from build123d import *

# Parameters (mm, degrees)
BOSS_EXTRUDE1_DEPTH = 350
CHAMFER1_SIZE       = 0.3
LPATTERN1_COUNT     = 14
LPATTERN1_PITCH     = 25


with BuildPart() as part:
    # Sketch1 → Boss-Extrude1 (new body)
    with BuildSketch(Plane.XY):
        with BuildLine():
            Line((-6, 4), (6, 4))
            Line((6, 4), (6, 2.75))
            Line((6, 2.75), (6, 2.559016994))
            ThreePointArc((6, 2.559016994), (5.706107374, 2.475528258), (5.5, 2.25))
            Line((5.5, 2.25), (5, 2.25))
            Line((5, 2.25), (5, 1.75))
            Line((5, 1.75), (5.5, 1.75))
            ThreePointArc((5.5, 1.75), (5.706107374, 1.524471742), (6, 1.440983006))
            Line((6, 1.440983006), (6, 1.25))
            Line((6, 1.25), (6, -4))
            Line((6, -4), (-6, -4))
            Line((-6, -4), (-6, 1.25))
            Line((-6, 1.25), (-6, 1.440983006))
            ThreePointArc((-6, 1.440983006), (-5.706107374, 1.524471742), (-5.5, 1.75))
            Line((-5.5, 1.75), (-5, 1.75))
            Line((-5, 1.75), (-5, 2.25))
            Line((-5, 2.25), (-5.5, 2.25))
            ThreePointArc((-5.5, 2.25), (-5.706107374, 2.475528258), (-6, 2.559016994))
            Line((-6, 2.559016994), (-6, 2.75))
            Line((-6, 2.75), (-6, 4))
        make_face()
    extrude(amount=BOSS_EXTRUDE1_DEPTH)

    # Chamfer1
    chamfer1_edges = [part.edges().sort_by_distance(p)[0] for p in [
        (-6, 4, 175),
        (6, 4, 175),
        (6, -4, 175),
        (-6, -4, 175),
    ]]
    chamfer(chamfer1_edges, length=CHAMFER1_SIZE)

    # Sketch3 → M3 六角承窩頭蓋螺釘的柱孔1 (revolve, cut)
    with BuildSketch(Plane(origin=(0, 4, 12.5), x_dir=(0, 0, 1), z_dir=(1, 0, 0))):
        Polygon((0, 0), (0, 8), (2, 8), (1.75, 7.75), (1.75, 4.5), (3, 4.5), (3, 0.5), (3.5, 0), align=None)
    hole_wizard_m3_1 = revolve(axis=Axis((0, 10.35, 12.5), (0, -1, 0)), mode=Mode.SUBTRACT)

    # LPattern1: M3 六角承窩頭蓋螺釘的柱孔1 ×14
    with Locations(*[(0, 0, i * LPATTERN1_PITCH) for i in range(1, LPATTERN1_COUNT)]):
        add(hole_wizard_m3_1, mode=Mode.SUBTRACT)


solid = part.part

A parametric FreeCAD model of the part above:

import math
import FreeCAD as App
import Part
import Sketcher
from FreeCAD import Vector
Q = App.Units.Quantity


def edges_at(feature, points):
    """Names of the edges that pass closest to the given points."""
    edges = feature.Shape.Edges
    near = lambda p: min(range(len(edges)), key=lambda i: edges[i].distToShape(Part.Vertex(*p))[0])
    return sorted({f"Edge{near(p) + 1}" for p in points})

doc = App.newDocument("Part")
params = doc.addObject("Spreadsheet::Sheet", "Params")
for row, (alias, value) in enumerate([
    ("sketch1_width", "12 mm"),
    ("sketch1_width2", "0.5 mm"),
    ("pad1_length", "350 mm"),
    ("chamfer_size", "0.3 mm"),
    ("sketch2_width", "8 mm"),
    ("sketch2_width2", "4 mm"),
    ("sketch2_height", "2 mm"),
    ("sketch2_height2", "3.5 mm"),
    ("sketch2_width3", "3.25 mm"),
    ("groove_angle", "360 deg"),
    ("linearpattern_pitch", "25 mm"),
], start=1):
    params.set(f"A{row}", alias)
    params.set(f"B{row}", "=" + value)
    params.setAlias(f"B{row}", alias)

body = doc.addObject("PartDesign::Body", "Body")

# Sketch on XY plane
sketch1 = body.newObject("Sketcher::SketchObject", "Sketch")
sketch1.AttachmentSupport = (doc.getObject("XY_Plane"), [""])
sketch1.MapMode = "FlatFace"
sketch1.addGeometry([
    Part.LineSegment(Vector(6, 4, 0), Vector(-6, 4, 0)),  # 0
    Part.LineSegment(Vector(-6, 4, 0), Vector(-6, 2.559017, 0)),  # 1
    Part.ArcOfCircle(Part.Circle(Vector(-6, 2, 0), Vector(0, 0, 1), 0.559017), math.radians(26.565051), math.radians(90)),  # 2
    Part.LineSegment(Vector(-5.5, 2.25, 0), Vector(-5, 2.25, 0)),  # 3
    Part.LineSegment(Vector(-5, 2.25, 0), Vector(-5, 1.75, 0)),  # 4
    Part.LineSegment(Vector(-5, 1.75, 0), Vector(-5.5, 1.75, 0)),  # 5
    Part.ArcOfCircle(Part.Circle(Vector(-6, 2, 0), Vector(0, 0, 1), 0.559017), math.radians(-90), math.radians(-26.565051)),  # 6
    Part.LineSegment(Vector(-6, 1.440983, 0), Vector(-6, -4, 0)),  # 7
    Part.LineSegment(Vector(-6, -4, 0), Vector(6, -4, 0)),  # 8
    Part.LineSegment(Vector(6, -4, 0), Vector(6, 1.440983, 0)),  # 9
    Part.ArcOfCircle(Part.Circle(Vector(6, 2, 0), Vector(0, 0, 1), 0.559017), math.radians(-153.434949), math.radians(-90)),  # 10
    Part.LineSegment(Vector(5.5, 1.75, 0), Vector(5, 1.75, 0)),  # 11
    Part.LineSegment(Vector(5, 1.75, 0), Vector(5, 2.25, 0)),  # 12
    Part.LineSegment(Vector(5, 2.25, 0), Vector(5.5, 2.25, 0)),  # 13
    Part.ArcOfCircle(Part.Circle(Vector(6, 2, 0), Vector(0, 0, 1), 0.559017), math.radians(90), math.radians(153.434949)),  # 14
    Part.LineSegment(Vector(6, 2.559017, 0), Vector(6, 4, 0)),  # 15
], False)
sketch1.addConstraint([
    Sketcher.Constraint("Coincident", 0, 2, 1, 1),
    Sketcher.Constraint("Coincident", 1, 2, 2, 2),
    Sketcher.Constraint("Coincident", 2, 1, 3, 1),
    Sketcher.Constraint("Coincident", 3, 2, 4, 1),
    Sketcher.Constraint("Coincident", 4, 2, 5, 1),
    Sketcher.Constraint("Coincident", 5, 2, 6, 2),
    Sketcher.Constraint("Coincident", 6, 1, 7, 1),
    Sketcher.Constraint("Coincident", 7, 2, 8, 1),
    Sketcher.Constraint("Coincident", 8, 2, 9, 1),
    Sketcher.Constraint("Coincident", 9, 2, 10, 2),
    Sketcher.Constraint("Coincident", 10, 1, 11, 1),
    Sketcher.Constraint("Coincident", 11, 2, 12, 1),
    Sketcher.Constraint("Coincident", 12, 2, 13, 1),
    Sketcher.Constraint("Coincident", 13, 2, 14, 2),
    Sketcher.Constraint("Coincident", 14, 1, 15, 1),
    Sketcher.Constraint("Coincident", 15, 2, 0, 1),
    Sketcher.Constraint("Horizontal", 0),
    Sketcher.Constraint("Vertical", 1),
    Sketcher.Constraint("Horizontal", 3),
    Sketcher.Constraint("Vertical", 4),
    Sketcher.Constraint("Horizontal", 5),
    Sketcher.Constraint("Vertical", 7),
    Sketcher.Constraint("Horizontal", 8),
    Sketcher.Constraint("Vertical", 9),
    Sketcher.Constraint("Horizontal", 11),
    Sketcher.Constraint("Vertical", 12),
    Sketcher.Constraint("Horizontal", 13),
    Sketcher.Constraint("Vertical", 15),
    Sketcher.Constraint("Coincident", 6, 3, 2, 3),
    Sketcher.Constraint("Coincident", 14, 3, 10, 3),
    Sketcher.Constraint("Equal", 2, 6),
    Sketcher.Constraint("Equal", 6, 10),
    Sketcher.Constraint("Equal", 10, 14),
    Sketcher.Constraint("Symmetric", 0, 2, 8, 2, -1, 1),
    Sketcher.Constraint("Symmetric", 2, 3, 10, 3, -2),
    Sketcher.Constraint("Symmetric", 4, 2, 11, 2, -2),
    Sketcher.Constraint("Horizontal", 3, 2, 12, 2),
    Sketcher.Constraint("Vertical", 6, 3, 0, 2),
    Sketcher.Constraint("Vertical", 2, 1, 5, 2),
    Sketcher.Constraint("Vertical", 1, 2, 6, 1),
    Sketcher.Constraint("Vertical", 9, 2, 14, 1),
    Sketcher.Constraint("Equal", 13, 4),
    Sketcher.Constraint("DistanceX", 0, 2, 0, 1, 12.0),
    Sketcher.Constraint("DistanceX", 3, 1, 3, 2, 0.5),
    Sketcher.Constraint("DistanceY", -1, 1, 2, 3, 2.0),
    Sketcher.Constraint("DistanceY", -1, 1, 0, 2, 4.0),
    Sketcher.Constraint("DistanceX", 3, 2, -1, 1, 5.0),
])
sketch1.setExpression("Constraints[42]", "Params.sketch1_width")
sketch1.setExpression("Constraints[43]", "Params.sketch1_width2")
pad1 = body.newObject("PartDesign::Pad", "Pad")
pad1.Profile = sketch1
pad1.setExpression("Length", "Params.pad1_length")
doc.recompute()

chamfer = body.newObject("PartDesign::Chamfer", "Chamfer")
chamfer.Base = (pad1, edges_at(pad1, [
    (-6, 4, 175),
    (6, 4, 175),
    (6, -4, 175),
    (-6, -4, 175),
]))
chamfer.setExpression("Size", "Params.chamfer_size")

# Sketch on YZ plane
sketch2 = body.newObject("Sketcher::SketchObject", "Sketch001")
sketch2.AttachmentSupport = (doc.getObject("YZ_Plane"), [""])
sketch2.MapMode = "FlatFace"
sketch2.addGeometry([
    Part.LineSegment(Vector(-4, 12.5, 0), Vector(4, 12.5, 0)),  # 0
    Part.LineSegment(Vector(4, 12.5, 0), Vector(4, 16, 0)),  # 1
    Part.LineSegment(Vector(4, 16, 0), Vector(3.5, 15.5, 0)),  # 2
    Part.LineSegment(Vector(3.5, 15.5, 0), Vector(-0.5, 15.5, 0)),  # 3
    Part.LineSegment(Vector(-0.5, 15.5, 0), Vector(-0.5, 14.25, 0)),  # 4
    Part.LineSegment(Vector(-0.5, 14.25, 0), Vector(-3.75, 14.25, 0)),  # 5
    Part.LineSegment(Vector(-3.75, 14.25, 0), Vector(-4, 14.5, 0)),  # 6
    Part.LineSegment(Vector(-4, 14.5, 0), Vector(-4, 12.5, 0)),  # 7
], False)
sketch2.addGeometry(Part.LineSegment(Vector(4, 12.5, 0), Vector(-4, 12.5, 0)), True)  # axis
sketch2.addConstraint([
    Sketcher.Constraint("Coincident", 0, 2, 1, 1),
    Sketcher.Constraint("Coincident", 1, 2, 2, 1),
    Sketcher.Constraint("Coincident", 2, 2, 3, 1),
    Sketcher.Constraint("Coincident", 3, 2, 4, 1),
    Sketcher.Constraint("Coincident", 4, 2, 5, 1),
    Sketcher.Constraint("Coincident", 5, 2, 6, 1),
    Sketcher.Constraint("Coincident", 6, 2, 7, 1),
    Sketcher.Constraint("Coincident", 7, 2, 0, 1),
    Sketcher.Constraint("Horizontal", 0),
    Sketcher.Constraint("Vertical", 1),
    Sketcher.Constraint("Horizontal", 3),
    Sketcher.Constraint("Vertical", 4),
    Sketcher.Constraint("Horizontal", 5),
    Sketcher.Constraint("Vertical", 7),
    Sketcher.Constraint("Horizontal", 8),
    Sketcher.Constraint("Coincident", 8, 1, 0, 2),
    Sketcher.Constraint("Perpendicular", 2, 6),
    Sketcher.Constraint("Vertical", 6, 2, 8, 2),
    Sketcher.Constraint("DistanceX", 0, 1, 0, 2, 8.0),
    Sketcher.Constraint("DistanceX", 3, 2, 3, 1, 4.0),
    Sketcher.Constraint("DistanceY", 7, 2, 7, 1, 2.0),
    Sketcher.Constraint("Angle", 2, Q("-135 deg")),
    Sketcher.Constraint("DistanceY", 1, 1, 1, 2, 3.5),
    Sketcher.Constraint("DistanceX", -1, 1, 0, 2, 4.0),
    Sketcher.Constraint("DistanceY", -1, 1, 1, 2, 16.0),
    Sketcher.Constraint("DistanceY", 0, 2, 2, 2, 3.0),
    Sketcher.Constraint("DistanceX", 5, 2, 5, 1, 3.25),
])
sketch2.setExpression("Constraints[18]", "Params.sketch2_width")
sketch2.setExpression("Constraints[19]", "Params.sketch2_width2")
sketch2.setExpression("Constraints[20]", "Params.sketch2_height")
sketch2.setExpression("Constraints[22]", "Params.sketch2_height2")
sketch2.setExpression("Constraints[26]", "Params.sketch2_width3")
groove = body.newObject("PartDesign::Groove", "Groove")
groove.Profile = sketch2
groove.ReferenceAxis = (sketch2, ["Axis0"])
groove.setExpression("Angle", "Params.groove_angle")
doc.recompute()

linearpattern = body.newObject("PartDesign::LinearPattern", "LinearPattern")
linearpattern.Originals = [groove]
linearpattern.Direction = (doc.getObject("Z_Axis"), [""])
linearpattern.Mode = "offset"
linearpattern.setExpression("Offset", "Params.linearpattern_pitch")
linearpattern.Occurrences = 14
body.Tip = linearpattern

doc.recompute()
